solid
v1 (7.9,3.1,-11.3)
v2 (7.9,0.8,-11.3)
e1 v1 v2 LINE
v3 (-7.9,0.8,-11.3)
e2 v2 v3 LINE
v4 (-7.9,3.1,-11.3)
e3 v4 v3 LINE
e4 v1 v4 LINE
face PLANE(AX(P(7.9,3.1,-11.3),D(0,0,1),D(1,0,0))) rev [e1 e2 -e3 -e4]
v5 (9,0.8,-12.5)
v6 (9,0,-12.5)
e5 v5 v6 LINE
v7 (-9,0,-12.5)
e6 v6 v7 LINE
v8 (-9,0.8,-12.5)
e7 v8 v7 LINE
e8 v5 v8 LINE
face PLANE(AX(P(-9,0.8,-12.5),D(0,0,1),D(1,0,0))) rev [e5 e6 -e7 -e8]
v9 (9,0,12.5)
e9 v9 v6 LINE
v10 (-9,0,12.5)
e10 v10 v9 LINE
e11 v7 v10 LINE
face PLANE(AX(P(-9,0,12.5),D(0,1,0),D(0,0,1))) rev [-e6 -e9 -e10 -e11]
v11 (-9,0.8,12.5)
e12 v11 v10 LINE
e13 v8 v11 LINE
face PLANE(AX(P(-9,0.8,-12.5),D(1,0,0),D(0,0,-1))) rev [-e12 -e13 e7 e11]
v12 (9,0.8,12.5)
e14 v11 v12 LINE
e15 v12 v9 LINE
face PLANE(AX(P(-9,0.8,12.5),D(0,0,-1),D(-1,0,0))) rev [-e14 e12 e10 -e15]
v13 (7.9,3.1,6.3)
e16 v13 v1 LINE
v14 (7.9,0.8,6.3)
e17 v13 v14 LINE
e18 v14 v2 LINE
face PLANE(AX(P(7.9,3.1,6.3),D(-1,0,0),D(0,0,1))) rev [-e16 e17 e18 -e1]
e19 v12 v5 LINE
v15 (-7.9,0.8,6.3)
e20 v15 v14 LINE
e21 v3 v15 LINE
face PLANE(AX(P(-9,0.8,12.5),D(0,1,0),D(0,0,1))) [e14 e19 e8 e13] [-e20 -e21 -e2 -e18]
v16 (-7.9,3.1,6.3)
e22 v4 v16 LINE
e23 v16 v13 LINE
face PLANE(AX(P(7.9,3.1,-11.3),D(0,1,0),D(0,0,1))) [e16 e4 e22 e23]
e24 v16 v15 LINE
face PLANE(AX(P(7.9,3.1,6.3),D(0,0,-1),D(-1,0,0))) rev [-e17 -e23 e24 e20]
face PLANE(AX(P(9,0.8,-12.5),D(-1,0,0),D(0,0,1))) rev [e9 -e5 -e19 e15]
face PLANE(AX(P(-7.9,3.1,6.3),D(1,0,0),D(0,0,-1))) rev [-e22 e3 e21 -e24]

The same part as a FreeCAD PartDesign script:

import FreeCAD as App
import Part
import Sketcher

V = App.Vector

doc = App.newDocument("Part")
body = doc.addObject("PartDesign::Body", "Body")

sketch1 = doc.addObject("Sketcher::SketchObject", "Sketch")
body.addObject(sketch1)
sketch1.AttachmentSupport = (doc.XZ_Plane, [""])
sketch1.MapMode = "FlatFace"
sketch1.addGeometry([
    Part.LineSegment(V(-9, -12.5, 0), V(-9, 12.5, 0)),
    Part.LineSegment(V(-9, 12.5, 0), V(9, 12.5, 0)),
    Part.LineSegment(V(9, 12.5, 0), V(9, -12.5, 0)),
    Part.LineSegment(V(9, -12.5, 0), V(-9, -12.5, 0)),
], False)
sketch1.addConstraint([
    Sketcher.Constraint("Coincident", 0, 2, 1, 1),
    Sketcher.Constraint("Coincident", 1, 2, 2, 1),
    Sketcher.Constraint("Coincident", 2, 2, 3, 1),
    Sketcher.Constraint("Coincident", 3, 2, 0, 1),
    Sketcher.Constraint("Vertical", 0),
    Sketcher.Constraint("Horizontal", 1),
    Sketcher.Constraint("Vertical", 2),
    Sketcher.Constraint("Horizontal", 3),
    Sketcher.Constraint("Symmetric", 0, 2, 2, 2, -1, 1),
    Sketcher.Constraint("DistanceX", 1, 1, 1, 2, 18.0),
    Sketcher.Constraint("DistanceY", 0, 1, 0, 2, 25.0),
])
pad1 = doc.addObject("PartDesign::Pad", "Pad")
body.addObject(pad1)
pad1.Profile = sketch1
pad1.Length = 0.8
pad1.Reversed = True

sketch2 = doc.addObject("Sketcher::SketchObject", "Sketch001")
body.addObject(sketch2)
sketch2.AttachmentSupport = (doc.XZ_Plane, [""])
sketch2.MapMode = "FlatFace"
sketch2.AttachmentOffset = App.Placement(V(0, 0, -0.8), App.Rotation())
sketch2.addGeometry([
    Part.LineSegment(V(7.9, 6.3, 0), V(7.9, -11.3, 0)),
    Part.LineSegment(V(7.9, -11.3, 0), V(-7.9, -11.3, 0)),
    Part.LineSegment(V(-7.9, -11.3, 0), V(-7.9, 6.3, 0)),
    Part.LineSegment(V(-7.9, 6.3, 0), V(7.9, 6.3, 0)),
], False)
sketch2.addConstraint([
    Sketcher.Constraint("Coincident", 0, 2, 1, 1),
    Sketcher.Constraint("Coincident", 1, 2, 2, 1),
    Sketcher.Constraint("Coincident", 2, 2, 3, 1),
    Sketcher.Constraint("Coincident", 3, 2, 0, 1),
    Sketcher.Constraint("Vertical", 0),
    Sketcher.Constraint("Horizontal", 1),
    Sketcher.Constraint("Vertical", 2),
    Sketcher.Constraint("Horizontal", 3),
    Sketcher.Constraint("DistanceX", 1, 2, 1, 1, 15.8),
    Sketcher.Constraint("DistanceY", 0, 2, 0, 1, 17.6),
    Sketcher.Constraint("DistanceX", -1, 1, 0, 2, 7.9),
    Sketcher.Constraint("DistanceY", 0, 2, -1, 1, 11.3),
])
pad2 = doc.addObject("PartDesign::Pad", "Pad001")
body.addObject(pad2)
pad2.Profile = sketch2
pad2.Length = 2.3
pad2.Reversed = True

doc.recompute()
